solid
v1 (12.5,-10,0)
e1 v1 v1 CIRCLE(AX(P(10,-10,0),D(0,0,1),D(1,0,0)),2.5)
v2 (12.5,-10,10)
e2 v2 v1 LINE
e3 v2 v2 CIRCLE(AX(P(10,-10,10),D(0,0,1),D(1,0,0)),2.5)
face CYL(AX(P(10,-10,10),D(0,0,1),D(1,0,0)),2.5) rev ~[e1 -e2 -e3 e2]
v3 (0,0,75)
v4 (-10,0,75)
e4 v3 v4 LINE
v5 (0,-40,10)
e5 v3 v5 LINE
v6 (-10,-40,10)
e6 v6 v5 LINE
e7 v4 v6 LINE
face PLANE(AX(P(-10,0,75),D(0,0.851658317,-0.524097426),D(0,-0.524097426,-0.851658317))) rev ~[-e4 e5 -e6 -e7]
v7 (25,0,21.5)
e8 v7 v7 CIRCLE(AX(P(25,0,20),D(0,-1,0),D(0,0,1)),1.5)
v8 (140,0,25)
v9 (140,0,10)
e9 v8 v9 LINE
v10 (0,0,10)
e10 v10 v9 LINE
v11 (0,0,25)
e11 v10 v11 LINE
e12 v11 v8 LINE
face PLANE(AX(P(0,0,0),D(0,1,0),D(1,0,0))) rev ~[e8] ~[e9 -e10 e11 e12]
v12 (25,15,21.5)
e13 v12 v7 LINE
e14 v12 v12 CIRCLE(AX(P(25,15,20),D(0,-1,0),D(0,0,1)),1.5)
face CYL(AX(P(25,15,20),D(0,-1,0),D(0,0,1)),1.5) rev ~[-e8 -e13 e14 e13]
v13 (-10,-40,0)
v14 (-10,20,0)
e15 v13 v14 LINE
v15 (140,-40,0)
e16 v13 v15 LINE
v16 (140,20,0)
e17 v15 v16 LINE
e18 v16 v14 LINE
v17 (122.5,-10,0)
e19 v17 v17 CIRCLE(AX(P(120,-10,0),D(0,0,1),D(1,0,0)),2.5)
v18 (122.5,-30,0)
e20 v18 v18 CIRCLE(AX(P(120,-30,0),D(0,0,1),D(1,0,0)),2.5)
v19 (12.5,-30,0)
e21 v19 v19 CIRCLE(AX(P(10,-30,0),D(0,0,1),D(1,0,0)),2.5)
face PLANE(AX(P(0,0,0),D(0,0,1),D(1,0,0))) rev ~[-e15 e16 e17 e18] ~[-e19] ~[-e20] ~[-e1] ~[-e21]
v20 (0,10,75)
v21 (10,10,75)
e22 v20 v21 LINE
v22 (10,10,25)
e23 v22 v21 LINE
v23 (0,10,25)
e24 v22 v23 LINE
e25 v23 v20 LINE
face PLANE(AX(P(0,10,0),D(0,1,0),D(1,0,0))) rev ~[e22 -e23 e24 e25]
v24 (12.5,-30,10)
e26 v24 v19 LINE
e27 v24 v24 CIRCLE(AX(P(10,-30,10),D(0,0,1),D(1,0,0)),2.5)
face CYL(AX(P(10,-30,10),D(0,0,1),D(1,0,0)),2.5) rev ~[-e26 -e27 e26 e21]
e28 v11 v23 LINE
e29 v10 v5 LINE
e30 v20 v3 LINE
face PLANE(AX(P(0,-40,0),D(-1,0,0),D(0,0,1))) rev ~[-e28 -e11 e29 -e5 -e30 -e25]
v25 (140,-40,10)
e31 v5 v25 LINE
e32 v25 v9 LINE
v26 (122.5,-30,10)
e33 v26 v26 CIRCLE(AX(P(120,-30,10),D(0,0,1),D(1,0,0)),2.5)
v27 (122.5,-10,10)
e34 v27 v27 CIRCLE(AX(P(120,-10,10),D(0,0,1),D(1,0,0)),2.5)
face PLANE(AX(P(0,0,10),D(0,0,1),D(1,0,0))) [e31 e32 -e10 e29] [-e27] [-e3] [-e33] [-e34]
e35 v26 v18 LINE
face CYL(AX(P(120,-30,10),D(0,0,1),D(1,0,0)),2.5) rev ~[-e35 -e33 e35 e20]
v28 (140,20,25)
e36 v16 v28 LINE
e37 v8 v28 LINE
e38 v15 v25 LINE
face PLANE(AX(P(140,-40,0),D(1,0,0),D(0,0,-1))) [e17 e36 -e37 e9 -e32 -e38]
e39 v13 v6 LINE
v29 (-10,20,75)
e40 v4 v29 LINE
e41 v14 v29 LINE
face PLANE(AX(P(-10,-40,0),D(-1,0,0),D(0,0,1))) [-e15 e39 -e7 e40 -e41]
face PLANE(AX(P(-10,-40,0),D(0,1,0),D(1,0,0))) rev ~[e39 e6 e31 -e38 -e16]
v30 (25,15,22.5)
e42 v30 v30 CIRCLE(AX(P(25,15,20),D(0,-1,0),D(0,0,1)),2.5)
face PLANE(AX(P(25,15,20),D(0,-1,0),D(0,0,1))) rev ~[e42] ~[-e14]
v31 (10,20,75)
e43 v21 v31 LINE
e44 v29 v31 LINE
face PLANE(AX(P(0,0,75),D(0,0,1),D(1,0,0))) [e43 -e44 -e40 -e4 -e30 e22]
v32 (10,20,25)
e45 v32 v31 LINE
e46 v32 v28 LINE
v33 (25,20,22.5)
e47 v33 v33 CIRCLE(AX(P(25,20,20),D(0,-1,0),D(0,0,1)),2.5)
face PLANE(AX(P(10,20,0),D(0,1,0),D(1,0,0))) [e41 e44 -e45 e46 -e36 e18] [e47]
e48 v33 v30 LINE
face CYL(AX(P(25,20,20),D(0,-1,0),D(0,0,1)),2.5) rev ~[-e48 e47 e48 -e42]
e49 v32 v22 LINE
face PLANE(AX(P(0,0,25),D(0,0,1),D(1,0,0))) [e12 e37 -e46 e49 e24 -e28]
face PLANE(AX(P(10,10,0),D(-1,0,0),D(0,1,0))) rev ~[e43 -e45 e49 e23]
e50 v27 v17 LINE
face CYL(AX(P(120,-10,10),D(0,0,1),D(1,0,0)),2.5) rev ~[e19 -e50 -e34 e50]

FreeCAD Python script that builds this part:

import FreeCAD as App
import Part
import Sketcher
Q = App.Units.Quantity


def add_polygon(sketch, points):
    """Adds a closed chain of lines whose ends are joined by coincident constraints."""
    first, n = sketch.GeometryCount, len(points)
    for a, b in zip(points, points[1:] + points[:1]):
        sketch.addGeometry(Part.LineSegment(App.Vector(*a, 0), App.Vector(*b, 0)), False)
    for i in range(n):
        sketch.addConstraint(Sketcher.Constraint("Coincident", first + i, 2, first + (i + 1) % n, 1))

doc = App.newDocument("Part")
params = doc.addObject("Spreadsheet::Sheet", "Params")
for row, (alias, value) in enumerate([
    ("sketch1_width", "300 mm"),
    ("sketch1_height", "20 mm"),
    ("pad1_length", "25 mm"),
    ("sketch2_width", "10 mm"),
    ("sketch2_width2", "300 mm"),
    ("pad2_length", "10 mm"),
    ("sketch3_width", "10 mm"),
    ("pad3_length", "75 mm"),
    ("sketch4_width", "40 mm"),
    ("sketch4_height", "65 mm"),
    ("pad4_length", "10 mm"),
    ("sketch5_diameter", "5 mm"),
    ("sketch6_diameter", "3 mm"),
    ("hole_diameter", "3 mm"),
    ("hole_cbore_diameter", "5 mm"),
    ("hole_cbore_depth", "5 mm"),
    ("sketch7_width", "60 mm"),
    ("sketch7_width2", "20 mm"),
    ("sketch7_height", "10 mm"),
    ("sketch7_height2", "75 mm"),
], start=1):
    params.set(f"A{row}", alias)
    params.set(f"B{row}", "=" + value)
    params.setAlias(f"B{row}", alias)

body = doc.addObject("PartDesign::Body", "Body")

# Sketch on XY plane
sketch1 = body.newObject("Sketcher::SketchObject", "Sketch")
sketch1.AttachmentSupport = (doc.getObject("XY_Plane"), [""])
sketch1.MapMode = "FlatFace"
add_polygon(sketch1, [(-10, 20), (-10, 0), (290, 0), (290, 20)])  # lines 0-3
sketch1.addConstraint([
    Sketcher.Constraint("Vertical", 0),
    Sketcher.Constraint("Horizontal", 1),
    Sketcher.Constraint("Vertical", 2),
    Sketcher.Constraint("Horizontal", 3),
    Sketcher.Constraint("PointOnObject", 0, 2, -1),
    Sketcher.Constraint("DistanceX", 1, 1, 1, 2, Q("300 mm")),
    Sketcher.Constraint("DistanceX", 0, 2, -1, 1, Q("10 mm")),
    Sketcher.Constraint("DistanceY", 0, 2, 0, 1, Q("20 mm")),
])
sketch1.setExpression("Constraints[9]", "Params.sketch1_width")
sketch1.setExpression("Constraints[11]", "Params.sketch1_height")
pad1 = body.newObject("PartDesign::Pad", "Pad")
pad1.Profile = sketch1
pad1.setExpression("Length", "Params.pad1_length")

# Sketch on XY plane
sketch2 = body.newObject("Sketcher::SketchObject", "Sketch001")
sketch2.AttachmentSupport = (doc.getObject("XY_Plane"), [""])
sketch2.MapMode = "FlatFace"
add_polygon(sketch2, [(10, 10), (0, 10), (0, 0), (-10, 0), (-10, -40), (290, -40), (290, 0), (280, 0), (280, 10), (270, 10), (270, 20), (10, 20)])  # lines 0-11
sketch2.addConstraint([
    Sketcher.Constraint("Horizontal", 0),
    Sketcher.Constraint("Vertical", 1),
    Sketcher.Constraint("Horizontal", 2),
    Sketcher.Constraint("Vertical", 3),
    Sketcher.Constraint("Horizontal", 4),
    Sketcher.Constraint("Vertical", 5),
    Sketcher.Constraint("Horizontal", 6),
    Sketcher.Constraint("Vertical", 7),
    Sketcher.Constraint("Horizontal", 8),
    Sketcher.Constraint("Vertical", 9),
    Sketcher.Constraint("Horizontal", 10),
    Sketcher.Constraint("Vertical", 11),
    Sketcher.Constraint("Coincident", 1, 2, -1, 1),
    Sketcher.Constraint("PointOnObject", 5, 2, -1),
    Sketcher.Constraint("Horizontal", 0, 2, 7, 2),
    Sketcher.Constraint("Equal", 0, 2),
    Sketcher.Constraint("Equal", 2, 6),
    Sketcher.Constraint("Equal", 6, 8),
    Sketcher.Constraint("Equal", 8, 1),
    Sketcher.Constraint("Equal", 7, 9),
    Sketcher.Constraint("DistanceX", 0, 2, 0, 1, Q("10 mm")),
    Sketcher.Constraint("DistanceX", 4, 1, 4, 2, Q("300 mm")),
    Sketcher.Constraint("DistanceY", 4, 2, 9, 2, Q("60 mm")),
])
sketch2.setExpression("Constraints[32]", "Params.sketch2_width")
sketch2.setExpression("Constraints[33]", "Params.sketch2_width2")
pad2 = body.newObject("PartDesign::Pad", "Pad001")
pad2.Profile = sketch2
pad2.setExpression("Length", "Params.pad2_length")

# Sketch on XY plane
sketch3 = body.newObject("Sketcher::SketchObject", "Sketch002")
sketch3.AttachmentSupport = (doc.getObject("XY_Plane"), [""])
sketch3.MapMode = "FlatFace"
add_polygon(sketch3, [(0, 0), (0, 10), (10, 10), (10, 20), (-10, 20), (-10, 0)])  # lines 0-5
add_polygon(sketch3, [(280, 10), (280, 0), (290, 0), (290, 20), (270, 20), (270, 10)])  # lines 6-11
sketch3.addConstraint([
    Sketcher.Constraint("Vertical", 0),
    Sketcher.Constraint("Horizontal", 1),
    Sketcher.Constraint("Vertical", 2),
    Sketcher.Constraint("Horizontal", 3),
    Sketcher.Constraint("Vertical", 4),
    Sketcher.Constraint("Horizontal", 5),
    Sketcher.Constraint("Vertical", 6),
    Sketcher.Constraint("Horizontal", 7),
    Sketcher.Constraint("Vertical", 8),
    Sketcher.Constraint("Horizontal", 9),
    Sketcher.Constraint("Vertical", 10),
    Sketcher.Constraint("Horizontal", 11),
    Sketcher.Constraint("Coincident", 5, 2, -1, 1),
    Sketcher.Constraint("PointOnObject", 6, 2, -1),
    Sketcher.Constraint("Horizontal", 3, 2, 8, 2),
    Sketcher.Constraint("Horizontal", 1, 2, 10, 2),
    Sketcher.Constraint("Equal", 1, 5),
    Sketcher.Constraint("Equal", 5, 7),
    Sketcher.Constraint("Equal", 3, 9),
    Sketcher.Constraint("Equal", 11, 0),
    Sketcher.Constraint("Equal", 0, 2),
    Sketcher.Constraint("DistanceX", 1, 1, 1, 2, Q("10 mm")),
    Sketcher.Constraint("DistanceX", -1, 1, 6, 2, Q("280 mm")),
])
sketch3.setExpression("Constraints[33]", "Params.sketch3_width")
pad3 = body.newObject("PartDesign::Pad", "Pad002")
pad3.Profile = sketch3
pad3.setExpression("Length", "Params.pad3_length")

# Sketch on YZ plane
sketch4 = body.newObject("Sketcher::SketchObject", "Sketch003")
sketch4.AttachmentSupport = (doc.getObject("YZ_Plane"), [""])
sketch4.MapMode = "FlatFace"
sketch4.AttachmentOffset = App.Placement(App.Vector(0, 0, -10), App.Rotation())
add_polygon(sketch4, [(0, 10), (-40, 10), (0, 75)])  # lines 0-2
sketch4.addConstraint([
    Sketcher.Constraint("Horizontal", 0),
    Sketcher.Constraint("Vertical", 2),
    Sketcher.Constraint("PointOnObject", 1, 2, -2),
    Sketcher.Constraint("DistanceX", 0, 2, 0, 1, Q("40 mm")),
    Sketcher.Constraint("DistanceY", 2, 2, 2, 1, Q("65 mm")),
    Sketcher.Constraint("DistanceY", -1, 1, 0, 2, Q("10 mm")),
])
sketch4.setExpression("Constraints[6]", "Params.sketch4_width")
sketch4.setExpression("Constraints[7]", "Params.sketch4_height")
pad4 = body.newObject("PartDesign::Pad", "Pad003")
pad4.Profile = sketch4
pad4.setExpression("Length", "Params.pad4_length")
doc.recompute()

datumplane = body.newObject("PartDesign::Plane", "DatumPlane")
datumplane.AttachmentSupport = (doc.getObject("YZ_Plane"), [""])
datumplane.MapMode = "FlatFace"
datumplane.AttachmentOffset = App.Placement(App.Vector(0, 0, 140), App.Rotation())
mirrored = body.newObject("PartDesign::Mirrored", "Mirrored")
mirrored.Originals = [pad4]
mirrored.MirrorPlane = (datumplane, [""])
body.Tip = mirrored

# Sketch on XY plane
sketch5 = body.newObject("Sketcher::SketchObject", "Sketch004")
sketch5.AttachmentSupport = (doc.getObject("XY_Plane"), [""])
sketch5.MapMode = "FlatFace"
sketch5.AttachmentOffset = App.Placement(App.Vector(0, 0, 10), App.Rotation())
sketch5.addGeometry([
    Part.Circle(App.Vector(10, -10, 0), App.Vector(0, 0, 1), 2.5),
    Part.Circle(App.Vector(120, -10, 0), App.Vector(0, 0, 1), 2.5),
    Part.Circle(App.Vector(10, -30, 0), App.Vector(0, 0, 1), 2.5),
    Part.Circle(App.Vector(120, -30, 0), App.Vector(0, 0, 1), 2.5),
], False)
sketch5.addConstraint([
    Sketcher.Constraint("Equal", 0, 1),
    Sketcher.Constraint("Equal", 1, 2),
    Sketcher.Constraint("Equal", 2, 3),
    Sketcher.Constraint("Horizontal", 0, 3, 1, 3),
    Sketcher.Constraint("Horizontal", 2, 3, 3, 3),
    Sketcher.Constraint("Vertical", 0, 3, 2, 3),
    Sketcher.Constraint("Vertical", 1, 3, 3, 3),
    Sketcher.Constraint("Diameter", 0, Q("5 mm")),
    Sketcher.Constraint("DistanceY", 2, 3, -1, 1, Q("30 mm")),
    Sketcher.Constraint("DistanceY", 2, 3, 0, 3, Q("20 mm")),
    Sketcher.Constraint("DistanceX", -1, 1, 0, 3, Q("10 mm")),
    Sketcher.Constraint("DistanceX", -1, 1, 1, 3, Q("120 mm")),
])
sketch5.setExpression("Constraints[7]", "Params.sketch5_diameter")
pocket1 = body.newObject("PartDesign::Pocket", "Pocket")
pocket1.Profile = sketch5
pocket1.Type = "ThroughAll"

# Sketch on XZ plane
sketch6 = body.newObject("Sketcher::SketchObject", "Sketch005")
sketch6.AttachmentSupport = (doc.getObject("XZ_Plane"), [""])
sketch6.MapMode = "FlatFace"
sketch6.AttachmentOffset = App.Placement(App.Vector(0, 0, -20), App.Rotation())
sketch6.addGeometry([
    Part.Circle(App.Vector(25, 20, 0), App.Vector(0, 0, 1), 1.5),
    Part.Circle(App.Vector(255, 20, 0), App.Vector(0, 0, 1), 1.5),
], False)
sketch6.addConstraint([
    Sketcher.Constraint("Equal", 0, 1),
    Sketcher.Constraint("Horizontal", 0, 3, 1, 3),
    Sketcher.Constraint("Diameter", 0, Q("3 mm")),
    Sketcher.Constraint("DistanceX", -1, 1, 0, 3, Q("25 mm")),
    Sketcher.Constraint("DistanceY", -1, 1, 0, 3, Q("20 mm")),
    Sketcher.Constraint("DistanceX", -1, 1, 1, 3, Q("255 mm")),
])
sketch6.setExpression("Constraints[2]", "Params.sketch6_diameter")
doc.recompute()
hole = body.newObject("PartDesign::Hole", "Hole")
hole.Profile = sketch6
hole.ThreadType = "None"
hole.setExpression("Diameter", "Params.hole_diameter")
hole.DepthType = "ThroughAll"
hole.HoleCutType = "Counterbore"
hole.setExpression("HoleCutDiameter", "Params.hole_cbore_diameter")
hole.setExpression("HoleCutDepth", "Params.hole_cbore_depth")
hole.Reversed = True

# Sketch on YZ plane
sketch7 = body.newObject("Sketcher::SketchObject", "Sketch006")
sketch7.AttachmentSupport = (doc.getObject("YZ_Plane"), [""])
sketch7.MapMode = "FlatFace"
sketch7.AttachmentOffset = App.Placement(App.Vector(0, 0, 140), App.Rotation())
add_polygon(sketch7, [(-40, 10), (-40, 0), (20, 0), (20, 75), (0, 75)])  # lines 0-4
sketch7.addConstraint([
    Sketcher.Constraint("Vertical", 0),
    Sketcher.Constraint("Horizontal", 1),
    Sketcher.Constraint("Vertical", 2),
    Sketcher.Constraint("Horizontal", 3),
    Sketcher.Constraint("PointOnObject", 0, 2, -1),
    Sketcher.Constraint("PointOnObject", 3, 2, -2),
    Sketcher.Constraint("DistanceX", 1, 1, 1, 2, Q("60 mm")),
    Sketcher.Constraint("DistanceX", 3, 2, 3, 1, Q("20 mm")),
    Sketcher.Constraint("DistanceY", 0, 2, 0, 1, Q("10 mm")),
    Sketcher.Constraint("DistanceY", 2, 1, 2, 2, Q("75 mm")),
])
sketch7.setExpression("Constraints[11]", "Params.sketch7_width")
sketch7.setExpression("Constraints[12]", "Params.sketch7_width2")
sketch7.setExpression("Constraints[13]", "Params.sketch7_height")
sketch7.setExpression("Constraints[14]", "Params.sketch7_height2")
pocket2 = body.newObject("PartDesign::Pocket", "Pocket001")
pocket2.Profile = sketch7
pocket2.Type = "ThroughAll"
pocket2.Reversed = True

doc.recompute()
